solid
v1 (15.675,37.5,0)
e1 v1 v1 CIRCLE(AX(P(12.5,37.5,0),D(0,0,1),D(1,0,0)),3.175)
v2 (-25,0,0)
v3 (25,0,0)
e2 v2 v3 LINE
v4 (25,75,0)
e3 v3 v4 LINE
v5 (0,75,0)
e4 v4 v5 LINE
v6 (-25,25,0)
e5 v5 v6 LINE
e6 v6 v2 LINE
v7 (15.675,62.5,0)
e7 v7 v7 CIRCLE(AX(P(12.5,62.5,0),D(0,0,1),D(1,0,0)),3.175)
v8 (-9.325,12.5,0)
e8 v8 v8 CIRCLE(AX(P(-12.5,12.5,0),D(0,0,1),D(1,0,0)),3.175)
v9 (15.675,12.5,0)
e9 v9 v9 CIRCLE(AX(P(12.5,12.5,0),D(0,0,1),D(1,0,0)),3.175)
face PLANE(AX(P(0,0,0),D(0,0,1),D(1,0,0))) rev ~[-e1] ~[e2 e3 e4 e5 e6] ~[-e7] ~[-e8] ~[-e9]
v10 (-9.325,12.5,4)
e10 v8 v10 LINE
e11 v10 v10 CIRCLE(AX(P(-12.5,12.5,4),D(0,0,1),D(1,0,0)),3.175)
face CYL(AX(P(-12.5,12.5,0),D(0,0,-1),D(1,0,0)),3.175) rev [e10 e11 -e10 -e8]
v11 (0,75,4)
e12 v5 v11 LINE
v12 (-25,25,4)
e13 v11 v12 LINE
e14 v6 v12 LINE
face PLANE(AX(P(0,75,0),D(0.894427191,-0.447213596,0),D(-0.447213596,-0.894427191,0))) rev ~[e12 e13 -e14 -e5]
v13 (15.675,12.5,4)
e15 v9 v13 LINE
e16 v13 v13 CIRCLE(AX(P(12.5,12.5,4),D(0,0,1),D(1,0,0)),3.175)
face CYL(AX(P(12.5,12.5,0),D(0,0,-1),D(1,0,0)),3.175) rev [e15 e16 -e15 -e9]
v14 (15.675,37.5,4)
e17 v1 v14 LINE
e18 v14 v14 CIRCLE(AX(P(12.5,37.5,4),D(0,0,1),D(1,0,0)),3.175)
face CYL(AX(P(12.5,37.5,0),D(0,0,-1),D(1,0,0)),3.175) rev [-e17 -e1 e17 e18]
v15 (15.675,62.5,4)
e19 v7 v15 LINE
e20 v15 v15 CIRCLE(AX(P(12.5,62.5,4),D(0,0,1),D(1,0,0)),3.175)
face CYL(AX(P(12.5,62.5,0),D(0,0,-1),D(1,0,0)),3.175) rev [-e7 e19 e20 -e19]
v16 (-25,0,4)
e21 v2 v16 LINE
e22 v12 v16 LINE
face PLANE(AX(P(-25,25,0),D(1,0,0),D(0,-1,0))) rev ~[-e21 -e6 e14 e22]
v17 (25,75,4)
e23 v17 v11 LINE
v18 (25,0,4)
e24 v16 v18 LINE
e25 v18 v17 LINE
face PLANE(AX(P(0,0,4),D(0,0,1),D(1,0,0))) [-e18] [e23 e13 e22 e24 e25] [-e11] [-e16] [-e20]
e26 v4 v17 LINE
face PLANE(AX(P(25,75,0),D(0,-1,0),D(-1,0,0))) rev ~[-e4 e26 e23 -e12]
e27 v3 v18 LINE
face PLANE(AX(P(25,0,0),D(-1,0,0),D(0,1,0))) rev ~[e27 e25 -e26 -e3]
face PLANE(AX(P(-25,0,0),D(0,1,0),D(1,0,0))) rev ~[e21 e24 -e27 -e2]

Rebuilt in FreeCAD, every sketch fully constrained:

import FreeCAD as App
import Part
import Sketcher
Q = App.Units.Quantity

doc = App.newDocument("Part")
body = doc.addObject("PartDesign::Body", "Body")

# Sketch on XY plane
sketch1 = body.newObject("Sketcher::SketchObject", "Sketch")
sketch1.AttachmentSupport = (doc.getObject("XY_Plane"), [""])
sketch1.MapMode = "FlatFace"
sketch1.addGeometry([
    Part.LineSegment(App.Vector(0, 75, 0), App.Vector(-25, 25, 0)),  # 0
    Part.LineSegment(App.Vector(-25, 25, 0), App.Vector(-25, 0, 0)),  # 1
    Part.LineSegment(App.Vector(-25, 0, 0), App.Vector(25, 0, 0)),  # 2
    Part.LineSegment(App.Vector(25, 0, 0), App.Vector(25, 75, 0)),  # 3
    Part.LineSegment(App.Vector(25, 75, 0), App.Vector(0, 75, 0)),  # 4
    Part.Circle(App.Vector(-12.5, 12.5, 0), App.Vector(0, 0, 1), 3.2),  # 5
    Part.Circle(App.Vector(12.5, 12.5, 0), App.Vector(0, 0, 1), 3.2),  # 6
    Part.Circle(App.Vector(12.5, 37.5, 0), App.Vector(0, 0, 1), 3.2),  # 7
    Part.Circle(App.Vector(12.5, 62.5, 0), App.Vector(0, 0, 1), 3.2),  # 8
], False)
sketch1.addConstraint([
    Sketcher.Constraint("Coincident", 0, 2, 1, 1),
    Sketcher.Constraint("Coincident", 1, 2, 2, 1),
    Sketcher.Constraint("Coincident", 2, 2, 3, 1),
    Sketcher.Constraint("Coincident", 3, 2, 4, 1),
    Sketcher.Constraint("Coincident", 4, 2, 0, 1),
    Sketcher.Constraint("Vertical", 1),
    Sketcher.Constraint("Horizontal", 2),
    Sketcher.Constraint("Vertical", 3),
    Sketcher.Constraint("Horizontal", 4),
    Sketcher.Constraint("Equal", 5, 6),
    Sketcher.Constraint("Equal", 6, 7),
    Sketcher.Constraint("Equal", 7, 8),
    Sketcher.Constraint("Symmetric", 1, 2, 2, 2, -1, 1),
    Sketcher.Constraint("Symmetric", 5, 3, 6, 3, -2),
    Sketcher.Constraint("PointOnObject", 4, 2, -2),
    Sketcher.Constraint("Vertical", 6, 3, 7, 3),
    Sketcher.Constraint("Vertical", 7, 3, 8, 3),
    Sketcher.Constraint("Equal", 4, 1),
    Sketcher.Constraint("Diameter", 5, Q("6.35 mm")),
    Sketcher.Constraint("DistanceX", 2, 1, 2, 2, Q("50 mm")),
    Sketcher.Constraint("DistanceY", 3, 1, 3, 2, Q("75 mm")),
    Sketcher.Constraint("DistanceX", 5, 3, 6, 3, Q("25 mm")),
    Sketcher.Constraint("DistanceY", 6, 3, 7, 3, Q("25 mm")),
    Sketcher.Constraint("DistanceY", 7, 3, 8, 3, Q("25 mm")),
    Sketcher.Constraint("DistanceY", -1, 1, 5, 3, Q("12.5 mm")),
])
pad1 = body.newObject("PartDesign::Pad", "Pad")
pad1.Profile = sketch1
pad1.Length = 4

doc.recompute()
